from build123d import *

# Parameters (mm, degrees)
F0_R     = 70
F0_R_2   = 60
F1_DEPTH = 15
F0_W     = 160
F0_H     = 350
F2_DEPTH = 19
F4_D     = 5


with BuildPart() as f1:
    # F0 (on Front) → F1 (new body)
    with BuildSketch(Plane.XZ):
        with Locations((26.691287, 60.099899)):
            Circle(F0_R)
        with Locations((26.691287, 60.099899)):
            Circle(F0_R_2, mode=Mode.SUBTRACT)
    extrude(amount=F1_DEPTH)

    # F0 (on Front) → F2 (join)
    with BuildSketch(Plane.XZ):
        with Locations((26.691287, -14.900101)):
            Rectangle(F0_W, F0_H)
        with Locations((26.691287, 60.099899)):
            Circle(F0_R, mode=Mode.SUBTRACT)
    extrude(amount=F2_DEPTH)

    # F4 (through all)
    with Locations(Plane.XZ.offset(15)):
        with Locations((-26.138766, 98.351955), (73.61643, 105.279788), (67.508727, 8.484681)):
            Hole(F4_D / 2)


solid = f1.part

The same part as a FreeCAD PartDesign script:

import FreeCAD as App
import Part
import Sketcher
from FreeCAD import Vector


def add_polygon(sketch, points):
    """Adds a closed chain of lines whose ends are joined by coincident constraints."""
    first, n = sketch.GeometryCount, len(points)
    for a, b in zip(points, points[1:] + points[:1]):
        sketch.addGeometry(Part.LineSegment(App.Vector(*a, 0), App.Vector(*b, 0)), False)
    for i in range(n):
        sketch.addConstraint(Sketcher.Constraint("Coincident", first + i, 2, first + (i + 1) % n, 1))

doc = App.newDocument("Part")
body = doc.addObject("PartDesign::Body", "Body")

# Sketch on XZ plane
sketch1 = body.newObject("Sketcher::SketchObject", "Sketch")
sketch1.AttachmentSupport = (doc.getObject("XZ_Plane"), [""])
sketch1.MapMode = "FlatFace"
sketch1.addGeometry(Part.Circle(Vector(27, 60, 0), Vector(0, 0, 1), 70), False)
sketch1.addGeometry(Part.Circle(Vector(27, 60, 0), Vector(0, 0, 1), 60), False)
sketch1.addConstraint(Sketcher.Constraint("Coincident", 1, 3, 0, 3))
sketch1.addConstraint(Sketcher.Constraint("Diameter", 0, 140.0))
sketch1.addConstraint(Sketcher.Constraint("Diameter", 1, 120.0))
sketch1.addConstraint(Sketcher.Constraint("DistanceY", -1, 1, 0, 3, 60.099899))
sketch1.addConstraint(Sketcher.Constraint("DistanceX", -1, 1, 0, 3, 26.691287))
pad1 = body.newObject("PartDesign::Pad", "Pad")
pad1.Profile = sketch1
pad1.Length = 15

# Sketch on XZ plane
sketch2 = body.newObject("Sketcher::SketchObject", "Sketch001")
sketch2.AttachmentSupport = (doc.getObject("XZ_Plane"), [""])
sketch2.MapMode = "FlatFace"
add_polygon(sketch2, [(-53, 160), (-53, -190), (107, -190), (107, 160)])  # lines 0-3
sketch2.addGeometry(Part.Circle(Vector(27, 60, 0), Vector(0, 0, 1), 70), False)  # 4
sketch2.addConstraint(Sketcher.Constraint("Vertical", 0))
sketch2.addConstraint(Sketcher.Constraint("Horizontal", 1))
sketch2.addConstraint(Sketcher.Constraint("Vertical", 2))
sketch2.addConstraint(Sketcher.Constraint("Horizontal", 3))
sketch2.addConstraint(Sketcher.Constraint("Diameter", 4, 140.0))
sketch2.addConstraint(Sketcher.Constraint("DistanceX", 1, 1, 1, 2, 160.0))
sketch2.addConstraint(Sketcher.Constraint("DistanceY", 0, 2, 0, 1, 350.0))
sketch2.addConstraint(Sketcher.Constraint("DistanceX", 0, 2, 4, 3, 80.0))
sketch2.addConstraint(Sketcher.Constraint("DistanceY", 0, 2, 4, 3, 250.0))
sketch2.addConstraint(Sketcher.Constraint("DistanceY", -1, 1, 4, 3, 60.099899))
sketch2.addConstraint(Sketcher.Constraint("DistanceX", -1, 1, 4, 3, 26.691287))
pad2 = body.newObject("PartDesign::Pad", "Pad001")
pad2.Profile = sketch2
pad2.Length = 19

# Sketch on XZ plane
sketch3 = body.newObject("Sketcher::SketchObject", "Sketch002")
sketch3.AttachmentSupport = (doc.getObject("XZ_Plane"), [""])
sketch3.MapMode = "FlatFace"
sketch3.AttachmentOffset = App.Placement(Vector(0, 0, 15), App.Rotation())
sketch3.addGeometry(Part.Circle(Vector(-26.1, 98.4, 0), Vector(0, 0, 1), 2.5), False)
sketch3.addGeometry(Part.Circle(Vector(73.6, 105.3, 0), Vector(0, 0, 1), 2.5), False)
sketch3.addGeometry(Part.Circle(Vector(67.5, 8.5, 0), Vector(0, 0, 1), 2.5), False)
sketch3.addConstraint(Sketcher.Constraint("Equal", 0, 1))
sketch3.addConstraint(Sketcher.Constraint("Equal", 1, 2))
sketch3.addConstraint(Sketcher.Constraint("Diameter", 0, 5.0))
sketch3.addConstraint(Sketcher.Constraint("DistanceX", -1, 1, 1, 3, 73.61643))
sketch3.addConstraint(Sketcher.Constraint("DistanceY", -1, 1, 2, 3, 8.484681))
sketch3.addConstraint(Sketcher.Constraint("DistanceX", 0, 3, -1, 1, 26.138766))
sketch3.addConstraint(Sketcher.Constraint("DistanceY", -1, 1, 0, 3, 98.351955))
sketch3.addConstraint(Sketcher.Constraint("DistanceY", -1, 1, 1, 3, 105.279788))
sketch3.addConstraint(Sketcher.Constraint("DistanceX", -1, 1, 2, 3, 67.508727))
doc.recompute()
hole = body.newObject("PartDesign::Hole", "Hole")
hole.Profile = sketch3
hole.ThreadType = "None"
hole.Diameter = 5
hole.DepthType = "ThroughAll"

doc.recompute()
